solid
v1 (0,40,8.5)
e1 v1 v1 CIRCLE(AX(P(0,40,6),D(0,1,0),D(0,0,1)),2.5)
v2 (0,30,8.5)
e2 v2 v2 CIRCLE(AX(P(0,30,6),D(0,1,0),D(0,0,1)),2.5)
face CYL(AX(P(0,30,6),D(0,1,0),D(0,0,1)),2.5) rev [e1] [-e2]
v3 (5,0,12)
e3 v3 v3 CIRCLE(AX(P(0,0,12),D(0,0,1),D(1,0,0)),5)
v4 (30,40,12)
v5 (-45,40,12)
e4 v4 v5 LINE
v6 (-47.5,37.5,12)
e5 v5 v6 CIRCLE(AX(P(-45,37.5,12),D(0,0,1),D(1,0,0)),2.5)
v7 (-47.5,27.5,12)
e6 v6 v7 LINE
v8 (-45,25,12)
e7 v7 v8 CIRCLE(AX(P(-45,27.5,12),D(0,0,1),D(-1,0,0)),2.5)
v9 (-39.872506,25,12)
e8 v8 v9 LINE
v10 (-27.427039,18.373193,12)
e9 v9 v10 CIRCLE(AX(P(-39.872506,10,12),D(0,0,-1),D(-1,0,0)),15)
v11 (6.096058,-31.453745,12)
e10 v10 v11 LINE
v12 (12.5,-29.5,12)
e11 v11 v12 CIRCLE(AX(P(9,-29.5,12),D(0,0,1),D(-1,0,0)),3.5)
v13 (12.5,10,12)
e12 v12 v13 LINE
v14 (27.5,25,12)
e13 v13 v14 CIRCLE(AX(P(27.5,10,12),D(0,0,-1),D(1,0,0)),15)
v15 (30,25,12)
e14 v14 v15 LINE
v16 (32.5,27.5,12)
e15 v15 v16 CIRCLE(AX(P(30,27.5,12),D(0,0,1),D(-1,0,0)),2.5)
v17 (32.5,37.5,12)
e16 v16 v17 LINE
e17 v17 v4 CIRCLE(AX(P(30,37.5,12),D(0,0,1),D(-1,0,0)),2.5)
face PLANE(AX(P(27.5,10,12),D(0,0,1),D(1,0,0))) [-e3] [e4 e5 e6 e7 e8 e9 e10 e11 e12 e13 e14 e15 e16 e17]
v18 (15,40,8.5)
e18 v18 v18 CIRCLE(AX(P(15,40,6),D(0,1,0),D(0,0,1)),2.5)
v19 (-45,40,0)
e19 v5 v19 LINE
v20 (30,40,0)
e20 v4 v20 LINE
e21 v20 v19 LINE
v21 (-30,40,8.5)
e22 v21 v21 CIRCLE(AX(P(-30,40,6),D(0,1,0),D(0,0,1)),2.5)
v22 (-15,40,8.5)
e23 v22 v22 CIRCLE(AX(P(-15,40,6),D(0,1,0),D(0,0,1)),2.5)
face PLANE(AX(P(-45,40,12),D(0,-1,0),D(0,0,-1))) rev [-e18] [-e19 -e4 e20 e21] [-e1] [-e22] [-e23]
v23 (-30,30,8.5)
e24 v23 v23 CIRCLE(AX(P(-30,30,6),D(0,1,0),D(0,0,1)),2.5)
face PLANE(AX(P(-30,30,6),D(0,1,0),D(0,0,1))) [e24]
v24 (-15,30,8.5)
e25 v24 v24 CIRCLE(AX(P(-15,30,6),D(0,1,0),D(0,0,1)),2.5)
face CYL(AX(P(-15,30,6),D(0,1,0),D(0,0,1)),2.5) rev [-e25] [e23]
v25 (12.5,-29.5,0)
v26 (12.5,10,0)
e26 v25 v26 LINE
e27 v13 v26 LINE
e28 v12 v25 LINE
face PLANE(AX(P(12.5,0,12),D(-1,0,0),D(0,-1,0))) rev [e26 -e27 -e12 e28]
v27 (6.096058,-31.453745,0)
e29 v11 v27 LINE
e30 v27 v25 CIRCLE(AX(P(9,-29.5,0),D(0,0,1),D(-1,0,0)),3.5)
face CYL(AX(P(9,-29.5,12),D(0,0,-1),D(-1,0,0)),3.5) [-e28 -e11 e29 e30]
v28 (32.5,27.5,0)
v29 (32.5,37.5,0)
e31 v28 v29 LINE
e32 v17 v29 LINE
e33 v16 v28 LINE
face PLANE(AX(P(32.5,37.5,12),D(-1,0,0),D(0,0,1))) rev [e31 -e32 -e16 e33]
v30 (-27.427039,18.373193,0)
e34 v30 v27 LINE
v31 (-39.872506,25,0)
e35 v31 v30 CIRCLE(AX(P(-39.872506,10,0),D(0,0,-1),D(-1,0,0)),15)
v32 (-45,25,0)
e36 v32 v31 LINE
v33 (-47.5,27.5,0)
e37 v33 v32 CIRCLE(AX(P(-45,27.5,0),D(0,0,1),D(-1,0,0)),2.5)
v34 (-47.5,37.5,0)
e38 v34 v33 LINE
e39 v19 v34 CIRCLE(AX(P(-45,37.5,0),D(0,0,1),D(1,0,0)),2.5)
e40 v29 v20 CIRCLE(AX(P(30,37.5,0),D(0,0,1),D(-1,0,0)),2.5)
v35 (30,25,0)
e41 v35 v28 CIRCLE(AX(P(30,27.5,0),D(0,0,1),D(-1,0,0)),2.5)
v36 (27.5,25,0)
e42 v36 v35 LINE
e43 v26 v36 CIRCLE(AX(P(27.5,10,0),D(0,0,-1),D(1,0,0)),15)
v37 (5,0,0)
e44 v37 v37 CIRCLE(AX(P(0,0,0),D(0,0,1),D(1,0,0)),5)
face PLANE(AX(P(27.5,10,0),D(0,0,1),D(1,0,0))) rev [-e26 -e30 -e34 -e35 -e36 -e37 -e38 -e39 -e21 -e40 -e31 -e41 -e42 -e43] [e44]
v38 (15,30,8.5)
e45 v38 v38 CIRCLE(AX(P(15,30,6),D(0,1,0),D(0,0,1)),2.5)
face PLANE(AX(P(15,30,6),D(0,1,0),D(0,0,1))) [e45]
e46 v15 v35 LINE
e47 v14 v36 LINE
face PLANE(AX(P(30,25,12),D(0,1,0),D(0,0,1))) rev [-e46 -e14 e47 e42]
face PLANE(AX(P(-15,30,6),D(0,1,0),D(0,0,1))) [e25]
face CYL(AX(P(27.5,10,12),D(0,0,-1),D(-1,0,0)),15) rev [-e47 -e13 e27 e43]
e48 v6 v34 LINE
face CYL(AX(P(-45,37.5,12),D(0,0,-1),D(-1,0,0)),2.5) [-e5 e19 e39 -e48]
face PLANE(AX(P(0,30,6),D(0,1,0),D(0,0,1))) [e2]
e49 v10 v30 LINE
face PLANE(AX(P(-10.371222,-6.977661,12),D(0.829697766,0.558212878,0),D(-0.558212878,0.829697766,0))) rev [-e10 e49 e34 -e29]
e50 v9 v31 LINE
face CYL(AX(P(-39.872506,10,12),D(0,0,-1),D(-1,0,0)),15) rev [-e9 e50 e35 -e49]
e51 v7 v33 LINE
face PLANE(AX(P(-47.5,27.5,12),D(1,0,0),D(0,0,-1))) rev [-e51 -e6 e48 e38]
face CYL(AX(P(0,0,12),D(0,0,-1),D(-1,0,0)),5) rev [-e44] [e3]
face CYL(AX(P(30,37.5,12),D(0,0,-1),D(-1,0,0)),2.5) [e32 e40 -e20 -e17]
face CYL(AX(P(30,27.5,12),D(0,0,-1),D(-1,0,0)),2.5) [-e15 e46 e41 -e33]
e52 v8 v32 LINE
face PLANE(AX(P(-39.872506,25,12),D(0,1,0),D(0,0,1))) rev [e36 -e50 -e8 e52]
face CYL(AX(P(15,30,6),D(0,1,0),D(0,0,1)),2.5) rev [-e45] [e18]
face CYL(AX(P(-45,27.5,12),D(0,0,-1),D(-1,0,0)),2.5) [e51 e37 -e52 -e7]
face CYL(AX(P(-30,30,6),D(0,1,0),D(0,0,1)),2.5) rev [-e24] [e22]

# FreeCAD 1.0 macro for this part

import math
import FreeCAD as App
import Part
import Sketcher
from FreeCAD import Vector
Q = App.Units.Quantity

doc = App.newDocument("Part")
body = doc.addObject("PartDesign::Body", "Body")

sketch1 = body.newObject("Sketcher::SketchObject", "Sketch")
sketch1.AttachmentSupport = (doc.getObject("XY_Plane"), [""])
sketch1.MapMode = "FlatFace"
sketch1.addGeometry([
    Part.ArcOfCircle(Part.Circle(Vector(9, -29.5, 0), Vector(0, 0, 1), 3.5), math.radians(-146.067704), math.radians(0)),
    Part.LineSegment(Vector(12.5, -29.5, 0), Vector(12.5, 10, 0)),
    Part.ArcOfCircle(Part.Circle(Vector(27.5, 10, 0), Vector(0, 0, 1), 15), math.radians(90), math.radians(180)),
    Part.LineSegment(Vector(27.5, 25, 0), Vector(30, 25, 0)),
    Part.ArcOfCircle(Part.Circle(Vector(30, 27.5, 0), Vector(0, 0, 1), 2.5), math.radians(-90), math.radians(0)),
    Part.LineSegment(Vector(32.5, 27.5, 0), Vector(32.5, 37.5, 0)),
    Part.ArcOfCircle(Part.Circle(Vector(30, 37.5, 0), Vector(0, 0, 1), 2.5), math.radians(0), math.radians(90)),
    Part.LineSegment(Vector(30, 40, 0), Vector(-45, 40, 0)),
    Part.ArcOfCircle(Part.Circle(Vector(-45, 37.5, 0), Vector(0, 0, 1), 2.5), math.radians(90), math.radians(180)),
    Part.LineSegment(Vector(-47.5, 37.5, 0), Vector(-47.5, 27.5, 0)),
    Part.ArcOfCircle(Part.Circle(Vector(-45, 27.5, 0), Vector(0, 0, 1), 2.5), math.radians(180), math.radians(270)),
    Part.LineSegment(Vector(-45, 25, 0), Vector(-39.872506, 25, 0)),
    Part.ArcOfCircle(Part.Circle(Vector(-39.872506, 10, 0), Vector(0, 0, 1), 15), math.radians(33.932296), math.radians(90)),
    Part.LineSegment(Vector(-27.427039, 18.373193, 0), Vector(-10.371222, -6.977661, 0)),
    Part.LineSegment(Vector(-10.371222, -6.977661, 0), Vector(6.096058, -31.453745, 0)),
    Part.Circle(Vector(0, 0, 0), Vector(0, 0, 1), 5),
], False)
sketch1.addConstraint([
    Sketcher.Constraint("Tangent", 0, 2, 1, 1),
    Sketcher.Constraint("Tangent", 1, 2, 2, 2),
    Sketcher.Constraint("Tangent", 2, 1, 3, 1),
    Sketcher.Constraint("Tangent", 3, 2, 4, 1),
    Sketcher.Constraint("Tangent", 4, 2, 5, 1),
    Sketcher.Constraint("Tangent", 5, 2, 6, 1),
    Sketcher.Constraint("Tangent", 6, 2, 7, 1),
    Sketcher.Constraint("Tangent", 7, 2, 8, 1),
    Sketcher.Constraint("Tangent", 8, 2, 9, 1),
    Sketcher.Constraint("Tangent", 9, 2, 10, 1),
    Sketcher.Constraint("Tangent", 10, 2, 11, 1),
    Sketcher.Constraint("Tangent", 11, 2, 12, 2),
    Sketcher.Constraint("Tangent", 12, 1, 13, 1),
    Sketcher.Constraint("Coincident", 13, 2, 14, 1),
    Sketcher.Constraint("Tangent", 14, 2, 0, 1),
    Sketcher.Constraint("Vertical", 1),
    Sketcher.Constraint("Horizontal", 3),
    Sketcher.Constraint("Vertical", 5),
    Sketcher.Constraint("Horizontal", 7),
    Sketcher.Constraint("Vertical", 9),
    Sketcher.Constraint("Horizontal", 11),
    Sketcher.Constraint("Coincident", 15, 3, -1, 1),
    Sketcher.Constraint("Equal", 4, 6),
    Sketcher.Constraint("Equal", 6, 8),
    Sketcher.Constraint("Equal", 8, 10),
    Sketcher.Constraint("Equal", 2, 12),
    Sketcher.Constraint("Parallel", 13, 14),
    Sketcher.Constraint("Horizontal", 4, 3, 10, 3),
    Sketcher.Constraint("Diameter", 15, Q("10 mm")),
    Sketcher.Constraint("Radius", 2, Q("15 mm")),
    Sketcher.Constraint("Radius", 0, Q("3.5 mm")),
    Sketcher.Constraint("Radius", 4, Q("2.5 mm")),
    Sketcher.Constraint("DistanceX", 7, 2, 7, 1, Q("75 mm")),
    Sketcher.Constraint("DistanceY", 5, 1, 5, 2, Q("10 mm")),
    Sketcher.Constraint("DistanceX", 3, 1, 3, 2, Q("2.5 mm")),
    Sketcher.Constraint("DistanceY", 1, 1, 1, 2, Q("39.5 mm")),
    Sketcher.Constraint("DistanceX", -1, 1, 0, 3, Q("9 mm")),
    Sketcher.Constraint("DistanceY", -1, 1, 2, 3, Q("10 mm")),
    Sketcher.Constraint("Distance", 14, Q("29.5 mm")),
    Sketcher.Constraint("DistanceX", 11, 1, 11, 2, Q("5.127494 mm")),
])
pad1 = body.newObject("PartDesign::Pad", "Pad")
pad1.Profile = sketch1
pad1.Length = 12

sketch2 = body.newObject("Sketcher::SketchObject", "Sketch001")
sketch2.AttachmentSupport = (doc.getObject("XZ_Plane"), [""])
sketch2.MapMode = "FlatFace"
sketch2.AttachmentOffset = App.Placement(Vector(0, 0, -40), App.Rotation())
sketch2.addGeometry([
    Part.Circle(Vector(-30, 6, 0), Vector(0, 0, 1), 2.5),
    Part.Circle(Vector(-15, 6, 0), Vector(0, 0, 1), 2.5),
    Part.Circle(Vector(0, 6, 0), Vector(0, 0, 1), 2.5),
    Part.Circle(Vector(15, 6, 0), Vector(0, 0, 1), 2.5),
], False)
sketch2.addConstraint([
    Sketcher.Constraint("Equal", 0, 1),
    Sketcher.Constraint("Equal", 1, 2),
    Sketcher.Constraint("Equal", 2, 3),
    Sketcher.Constraint("Symmetric", 1, 3, 3, 3, -2),
    Sketcher.Constraint("PointOnObject", 2, 3, -2),
    Sketcher.Constraint("Horizontal", 0, 3, 1, 3),
    Sketcher.Constraint("Horizontal", 1, 3, 2, 3),
    Sketcher.Constraint("Diameter", 0, Q("5 mm")),
    Sketcher.Constraint("DistanceX", 0, 3, -1, 1, Q("30 mm")),
    Sketcher.Constraint("DistanceY", -1, 1, 0, 3, Q("6 mm")),
    Sketcher.Constraint("DistanceX", 1, 3, -1, 1, Q("15 mm")),
])
pocket1 = body.newObject("PartDesign::Pocket", "Pocket")
pocket1.Profile = sketch2
pocket1.Length = 10
pocket1.Reversed = True

doc.recompute()
